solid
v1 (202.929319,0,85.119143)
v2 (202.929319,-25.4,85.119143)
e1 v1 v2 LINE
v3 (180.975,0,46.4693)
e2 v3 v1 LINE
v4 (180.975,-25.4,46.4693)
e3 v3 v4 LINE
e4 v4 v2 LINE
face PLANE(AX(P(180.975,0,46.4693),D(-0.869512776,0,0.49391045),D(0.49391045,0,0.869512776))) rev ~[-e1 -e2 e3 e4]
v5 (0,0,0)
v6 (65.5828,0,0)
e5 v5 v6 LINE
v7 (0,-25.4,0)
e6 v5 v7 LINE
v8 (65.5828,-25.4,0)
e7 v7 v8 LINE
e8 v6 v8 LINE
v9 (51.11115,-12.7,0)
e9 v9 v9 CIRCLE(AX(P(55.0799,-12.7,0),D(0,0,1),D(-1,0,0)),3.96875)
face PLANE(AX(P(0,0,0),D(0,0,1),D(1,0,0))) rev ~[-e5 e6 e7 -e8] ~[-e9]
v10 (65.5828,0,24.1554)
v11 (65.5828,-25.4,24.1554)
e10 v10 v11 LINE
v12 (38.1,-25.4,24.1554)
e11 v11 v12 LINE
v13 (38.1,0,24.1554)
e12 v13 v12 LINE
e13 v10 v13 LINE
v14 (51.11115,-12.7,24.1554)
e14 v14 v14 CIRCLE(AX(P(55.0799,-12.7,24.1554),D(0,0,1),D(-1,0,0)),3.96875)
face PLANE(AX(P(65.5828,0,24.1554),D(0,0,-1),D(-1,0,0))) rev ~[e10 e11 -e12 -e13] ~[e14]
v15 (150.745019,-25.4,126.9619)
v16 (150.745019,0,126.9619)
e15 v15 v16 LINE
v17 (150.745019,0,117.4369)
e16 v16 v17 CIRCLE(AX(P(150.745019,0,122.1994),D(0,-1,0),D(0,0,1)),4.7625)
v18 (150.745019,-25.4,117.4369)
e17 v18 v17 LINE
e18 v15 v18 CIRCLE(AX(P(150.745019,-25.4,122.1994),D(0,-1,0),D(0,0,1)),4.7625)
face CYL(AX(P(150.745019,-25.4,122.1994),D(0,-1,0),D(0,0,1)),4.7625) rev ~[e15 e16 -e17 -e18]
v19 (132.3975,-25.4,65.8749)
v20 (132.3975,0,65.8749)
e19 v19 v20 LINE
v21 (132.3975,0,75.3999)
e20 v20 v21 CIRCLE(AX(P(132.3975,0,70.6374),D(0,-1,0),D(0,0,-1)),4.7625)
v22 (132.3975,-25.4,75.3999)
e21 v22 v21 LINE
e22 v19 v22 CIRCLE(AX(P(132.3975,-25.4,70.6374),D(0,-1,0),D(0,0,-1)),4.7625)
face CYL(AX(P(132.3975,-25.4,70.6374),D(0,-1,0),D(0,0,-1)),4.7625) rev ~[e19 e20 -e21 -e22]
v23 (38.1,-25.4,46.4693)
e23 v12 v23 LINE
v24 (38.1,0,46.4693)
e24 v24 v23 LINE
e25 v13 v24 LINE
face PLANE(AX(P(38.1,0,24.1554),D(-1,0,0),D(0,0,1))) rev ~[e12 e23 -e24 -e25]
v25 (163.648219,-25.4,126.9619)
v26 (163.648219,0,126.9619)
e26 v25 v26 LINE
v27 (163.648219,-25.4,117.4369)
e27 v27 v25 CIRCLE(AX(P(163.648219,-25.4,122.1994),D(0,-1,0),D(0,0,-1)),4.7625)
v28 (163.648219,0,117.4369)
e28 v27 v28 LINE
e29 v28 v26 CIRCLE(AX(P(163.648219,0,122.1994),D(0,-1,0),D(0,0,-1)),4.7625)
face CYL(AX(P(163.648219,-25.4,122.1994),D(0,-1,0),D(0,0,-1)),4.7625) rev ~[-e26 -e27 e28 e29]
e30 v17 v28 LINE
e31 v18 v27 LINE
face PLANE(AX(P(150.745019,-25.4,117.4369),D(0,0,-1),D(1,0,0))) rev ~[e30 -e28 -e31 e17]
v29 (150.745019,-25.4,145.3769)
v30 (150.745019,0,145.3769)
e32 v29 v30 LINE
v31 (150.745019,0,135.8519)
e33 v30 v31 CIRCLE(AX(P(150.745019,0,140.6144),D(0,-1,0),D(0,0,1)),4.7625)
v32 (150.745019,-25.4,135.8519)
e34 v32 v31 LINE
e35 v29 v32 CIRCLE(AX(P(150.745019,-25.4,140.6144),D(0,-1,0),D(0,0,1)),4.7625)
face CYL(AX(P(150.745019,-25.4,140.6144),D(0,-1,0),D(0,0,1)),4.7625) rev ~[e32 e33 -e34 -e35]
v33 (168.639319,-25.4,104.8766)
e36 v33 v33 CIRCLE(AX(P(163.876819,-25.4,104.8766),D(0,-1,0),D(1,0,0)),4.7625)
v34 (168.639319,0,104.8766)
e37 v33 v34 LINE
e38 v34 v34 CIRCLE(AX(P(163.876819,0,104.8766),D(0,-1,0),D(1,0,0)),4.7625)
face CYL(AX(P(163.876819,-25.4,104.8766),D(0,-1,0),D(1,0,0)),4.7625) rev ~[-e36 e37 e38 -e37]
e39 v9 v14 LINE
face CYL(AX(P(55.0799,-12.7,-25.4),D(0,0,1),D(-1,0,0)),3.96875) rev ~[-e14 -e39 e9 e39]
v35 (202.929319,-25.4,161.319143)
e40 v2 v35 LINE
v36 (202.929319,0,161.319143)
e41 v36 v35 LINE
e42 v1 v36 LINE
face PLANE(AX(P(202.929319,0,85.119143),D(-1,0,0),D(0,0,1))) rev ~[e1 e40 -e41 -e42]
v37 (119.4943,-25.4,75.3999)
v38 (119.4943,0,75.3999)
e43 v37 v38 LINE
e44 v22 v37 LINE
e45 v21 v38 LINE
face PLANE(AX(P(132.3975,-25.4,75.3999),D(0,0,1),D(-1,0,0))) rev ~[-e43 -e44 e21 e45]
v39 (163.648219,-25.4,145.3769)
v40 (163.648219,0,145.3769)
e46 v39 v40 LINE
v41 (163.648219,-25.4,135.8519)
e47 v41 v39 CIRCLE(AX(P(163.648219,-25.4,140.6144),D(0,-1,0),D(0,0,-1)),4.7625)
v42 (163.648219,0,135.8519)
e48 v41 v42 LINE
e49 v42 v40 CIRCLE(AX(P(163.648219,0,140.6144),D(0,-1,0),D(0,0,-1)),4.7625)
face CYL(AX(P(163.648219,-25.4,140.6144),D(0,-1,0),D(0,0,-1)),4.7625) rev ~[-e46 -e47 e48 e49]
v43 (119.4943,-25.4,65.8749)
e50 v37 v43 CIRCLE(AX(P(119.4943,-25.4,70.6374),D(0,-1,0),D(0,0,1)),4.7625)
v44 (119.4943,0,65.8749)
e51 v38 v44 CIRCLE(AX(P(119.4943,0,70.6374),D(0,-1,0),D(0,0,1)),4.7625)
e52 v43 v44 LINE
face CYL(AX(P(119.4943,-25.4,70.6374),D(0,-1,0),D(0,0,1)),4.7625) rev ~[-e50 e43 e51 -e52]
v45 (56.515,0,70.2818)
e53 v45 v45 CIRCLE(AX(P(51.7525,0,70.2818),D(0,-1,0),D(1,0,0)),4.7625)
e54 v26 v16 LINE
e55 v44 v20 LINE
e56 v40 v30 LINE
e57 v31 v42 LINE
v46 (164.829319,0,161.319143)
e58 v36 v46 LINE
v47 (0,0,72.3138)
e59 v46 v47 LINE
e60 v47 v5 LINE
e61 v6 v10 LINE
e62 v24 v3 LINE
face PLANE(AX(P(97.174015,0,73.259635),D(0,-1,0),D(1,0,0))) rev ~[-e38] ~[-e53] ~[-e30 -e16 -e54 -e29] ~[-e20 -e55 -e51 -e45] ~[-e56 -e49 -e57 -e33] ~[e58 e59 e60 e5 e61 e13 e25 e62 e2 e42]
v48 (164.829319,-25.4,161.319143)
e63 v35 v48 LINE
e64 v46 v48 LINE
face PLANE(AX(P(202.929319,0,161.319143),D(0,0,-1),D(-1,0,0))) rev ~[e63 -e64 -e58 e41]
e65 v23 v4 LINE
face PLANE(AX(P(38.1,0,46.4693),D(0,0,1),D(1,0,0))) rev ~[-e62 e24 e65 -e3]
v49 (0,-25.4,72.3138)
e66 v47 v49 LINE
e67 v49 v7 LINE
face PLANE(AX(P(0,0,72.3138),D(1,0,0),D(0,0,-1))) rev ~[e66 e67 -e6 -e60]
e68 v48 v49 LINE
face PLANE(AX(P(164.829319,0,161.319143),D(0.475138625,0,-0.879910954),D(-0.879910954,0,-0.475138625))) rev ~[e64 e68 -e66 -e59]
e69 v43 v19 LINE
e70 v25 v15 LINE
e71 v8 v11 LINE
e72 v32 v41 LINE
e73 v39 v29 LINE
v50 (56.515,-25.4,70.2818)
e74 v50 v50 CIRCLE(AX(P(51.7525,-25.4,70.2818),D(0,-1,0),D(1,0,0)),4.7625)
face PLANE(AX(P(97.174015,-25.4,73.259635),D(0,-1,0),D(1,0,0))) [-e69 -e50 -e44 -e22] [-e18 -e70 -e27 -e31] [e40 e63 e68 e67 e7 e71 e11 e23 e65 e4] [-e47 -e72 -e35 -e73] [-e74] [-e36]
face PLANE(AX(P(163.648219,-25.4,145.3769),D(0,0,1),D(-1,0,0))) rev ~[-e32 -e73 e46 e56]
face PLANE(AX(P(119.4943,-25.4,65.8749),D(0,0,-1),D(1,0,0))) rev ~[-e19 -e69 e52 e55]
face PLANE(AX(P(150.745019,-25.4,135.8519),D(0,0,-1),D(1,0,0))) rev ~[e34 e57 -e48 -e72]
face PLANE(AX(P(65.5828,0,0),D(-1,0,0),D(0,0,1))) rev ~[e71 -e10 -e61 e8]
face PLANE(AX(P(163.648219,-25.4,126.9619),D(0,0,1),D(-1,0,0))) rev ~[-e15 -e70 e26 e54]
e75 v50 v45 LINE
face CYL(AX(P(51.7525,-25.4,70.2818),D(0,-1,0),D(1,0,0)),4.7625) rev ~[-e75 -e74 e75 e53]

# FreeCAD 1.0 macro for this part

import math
import FreeCAD as App
import Part
import Sketcher
Q = App.Units.Quantity


def add_polygon(sketch, points):
    """Adds a closed chain of lines whose ends are joined by coincident constraints."""
    first, n = sketch.GeometryCount, len(points)
    for a, b in zip(points, points[1:] + points[:1]):
        sketch.addGeometry(Part.LineSegment(App.Vector(*a, 0), App.Vector(*b, 0)), False)
    for i in range(n):
        sketch.addConstraint(Sketcher.Constraint("Coincident", first + i, 2, first + (i + 1) % n, 1))

doc = App.newDocument("Part")
body = doc.addObject("PartDesign::Body", "Body")

sketch1 = body.newObject("Sketcher::SketchObject", "Sketch")
sketch1.AttachmentSupport = (doc.getObject("XZ_Plane"), [""])
sketch1.MapMode = "FlatFace"
add_polygon(sketch1, [(0, 72), (0, 0), (66, 0), (66, 24), (38, 24), (38, 46), (181, 46), (203, 85), (203, 161), (165, 161)])
sketch1.addConstraint([
    Sketcher.Constraint("Vertical", 0),
    Sketcher.Constraint("Horizontal", 1),
    Sketcher.Constraint("Vertical", 2),
    Sketcher.Constraint("Horizontal", 3),
    Sketcher.Constraint("Vertical", 4),
    Sketcher.Constraint("Horizontal", 5),
    Sketcher.Constraint("Vertical", 7),
    Sketcher.Constraint("Horizontal", 8),
    Sketcher.Constraint("Coincident", 0, 2, -1, 1),
    Sketcher.Constraint("DistanceY", 7, 1, 7, 2, Q("3 in")),
    Sketcher.Constraint("DistanceX", 8, 2, 8, 1, Q("1.5 in")),
    Sketcher.Constraint("DistanceX", -1, 1, 3, 2, Q("1.5 in")),
    Sketcher.Constraint("Distance", 6, Q("1.75 in")),
    Sketcher.Constraint("DistanceX", 1, 1, 1, 2, Q("2.582 in")),
    Sketcher.Constraint("DistanceX", 5, 1, 5, 2, Q("5.625 in")),
    Sketcher.Constraint("DistanceY", 0, 2, 0, 1, Q("2.847 in")),
    Sketcher.Constraint("DistanceY", 2, 1, 2, 2, Q("0.951 in")),
    Sketcher.Constraint("Distance", 9, Q("7.375 in")),
    Sketcher.Constraint("DistanceY", 4, 1, 4, 2, Q("0.8785 in")),
])
pad1 = body.newObject("PartDesign::Pad", "Pad")
pad1.Profile = sketch1
pad1.Length = Q("1 in")

sketch2 = body.newObject("Sketcher::SketchObject", "Sketch001")
sketch2.AttachmentSupport = (doc.getObject("XZ_Plane"), [""])
sketch2.MapMode = "FlatFace"
sketch2.AttachmentOffset = App.Placement(App.Vector(0, 0, 1 * 25.4), App.Rotation())
sketch2.addGeometry([
    Part.Circle(App.Vector(51.8, 70.3, 0), App.Vector(0, 0, 1), 4.8),
    Part.Circle(App.Vector(163.9, 104.9, 0), App.Vector(0, 0, 1), 4.8),
    Part.LineSegment(App.Vector(132.4, 75.4, 0), App.Vector(119.5, 75.4, 0)),
    Part.ArcOfCircle(Part.Circle(App.Vector(119.5, 70.6, 0), App.Vector(0, 0, 1), 4.8), math.radians(90), math.radians(270)),
    Part.LineSegment(App.Vector(119.5, 65.9, 0), App.Vector(132.4, 65.9, 0)),
    Part.ArcOfCircle(Part.Circle(App.Vector(132.4, 70.6, 0), App.Vector(0, 0, 1), 4.8), math.radians(-90), math.radians(90)),
    Part.LineSegment(App.Vector(163.6, 145.4, 0), App.Vector(150.7, 145.4, 0)),
    Part.ArcOfCircle(Part.Circle(App.Vector(150.7, 140.6, 0), App.Vector(0, 0, 1), 4.8), math.radians(90), math.radians(270)),
    Part.LineSegment(App.Vector(150.7, 135.9, 0), App.Vector(163.6, 135.9, 0)),
    Part.ArcOfCircle(Part.Circle(App.Vector(163.6, 140.6, 0), App.Vector(0, 0, 1), 4.8), math.radians(-90), math.radians(90)),
    Part.LineSegment(App.Vector(163.6, 127, 0), App.Vector(150.7, 127, 0)),
    Part.ArcOfCircle(Part.Circle(App.Vector(150.7, 122.2, 0), App.Vector(0, 0, 1), 4.8), math.radians(90), math.radians(270)),
    Part.LineSegment(App.Vector(150.7, 117.4, 0), App.Vector(163.6, 117.4, 0)),
    Part.ArcOfCircle(Part.Circle(App.Vector(163.6, 122.2, 0), App.Vector(0, 0, 1), 4.8), math.radians(-90), math.radians(90)),
], False)
sketch2.addConstraint([
    Sketcher.Constraint("Tangent", 2, 2, 3, 1),
    Sketcher.Constraint("Tangent", 3, 2, 4, 1),
    Sketcher.Constraint("Tangent", 4, 2, 5, 1),
    Sketcher.Constraint("Tangent", 5, 2, 2, 1),
    Sketcher.Constraint("Tangent", 6, 2, 7, 1),
    Sketcher.Constraint("Tangent", 7, 2, 8, 1),
    Sketcher.Constraint("Tangent", 8, 2, 9, 1),
    Sketcher.Constraint("Tangent", 9, 2, 6, 1),
    Sketcher.Constraint("Tangent", 10, 2, 11, 1),
    Sketcher.Constraint("Tangent", 11, 2, 12, 1),
    Sketcher.Constraint("Tangent", 12, 2, 13, 1),
    Sketcher.Constraint("Tangent", 13, 2, 10, 1),
    Sketcher.Constraint("Horizontal", 2),
    Sketcher.Constraint("Horizontal", 4),
    Sketcher.Constraint("Horizontal", 6),
    Sketcher.Constraint("Horizontal", 8),
    Sketcher.Constraint("Horizontal", 10),
    Sketcher.Constraint("Horizontal", 12),
    Sketcher.Constraint("Equal", 0, 1),
    Sketcher.Constraint("Equal", 1, 3),
    Sketcher.Constraint("Equal", 5, 7),
    Sketcher.Constraint("Equal", 9, 11),
    Sketcher.Constraint("Vertical", 7, 3, 11, 3),
    Sketcher.Constraint("Vertical", 9, 3, 13, 3),
    Sketcher.Constraint("Equal", 4, 6),
    Sketcher.Constraint("Diameter", 0, Q("0.375 in")),
    Sketcher.Constraint("DistanceX", 2, 2, 2, 1, Q("0.508 in")),
    Sketcher.Constraint("DistanceY", 5, 3, 11, 3, Q("2.03 in")),
    Sketcher.Constraint("DistanceY", 10, 2, 7, 2, Q("0.35 in")),
    Sketcher.Constraint("DistanceY", -1, 1, 0, 3, Q("2.767 in")),
    Sketcher.Constraint("DistanceY", -1, 1, 1, 3, Q("4.129 in")),
    Sketcher.Constraint("DistanceY", -1, 1, 3, 3, Q("2.781 in")),
    Sketcher.Constraint("DistanceX", 0, 3, 3, 3, Q("2.667 in")),
    Sketcher.Constraint("DistanceX", 7, 3, 1, 3, Q("0.517 in")),
    Sketcher.Constraint("DistanceX", -1, 1, 0, 3, Q("2.0375 in")),
    Sketcher.Constraint("DistanceX", -1, 1, 1, 3, Q("163.876819 mm")),
])
pocket1 = body.newObject("PartDesign::Pocket", "Pocket")
pocket1.Profile = sketch2
pocket1.Type = "ThroughAll"

sketch3 = body.newObject("Sketcher::SketchObject", "Sketch002")
sketch3.AttachmentSupport = (doc.getObject("XY_Plane"), [""])
sketch3.MapMode = "FlatFace"
sketch3.addGeometry(Part.Circle(App.Vector(55.1, -12.7, 0), App.Vector(0, 0, 1), 4), False)
sketch3.addConstraint([
    Sketcher.Constraint("Diameter", 0, Q("0.3125 in")),
    Sketcher.Constraint("DistanceY", 0, 3, -1, 1, Q("0.5 in")),
    Sketcher.Constraint("DistanceX", -1, 1, 0, 3, Q("2.1685 in")),
])
doc.recompute()
hole = body.newObject("PartDesign::Hole", "Hole")
hole.Profile = sketch3
hole.ThreadType = "None"
hole.Diameter = Q("0.3125 in")
hole.DepthType = "Dimension"
hole.Depth = Q("1 in")
hole.DrillPoint = "Angled"
hole.DrillPointAngle = 118
hole.Reversed = True

doc.recompute()
